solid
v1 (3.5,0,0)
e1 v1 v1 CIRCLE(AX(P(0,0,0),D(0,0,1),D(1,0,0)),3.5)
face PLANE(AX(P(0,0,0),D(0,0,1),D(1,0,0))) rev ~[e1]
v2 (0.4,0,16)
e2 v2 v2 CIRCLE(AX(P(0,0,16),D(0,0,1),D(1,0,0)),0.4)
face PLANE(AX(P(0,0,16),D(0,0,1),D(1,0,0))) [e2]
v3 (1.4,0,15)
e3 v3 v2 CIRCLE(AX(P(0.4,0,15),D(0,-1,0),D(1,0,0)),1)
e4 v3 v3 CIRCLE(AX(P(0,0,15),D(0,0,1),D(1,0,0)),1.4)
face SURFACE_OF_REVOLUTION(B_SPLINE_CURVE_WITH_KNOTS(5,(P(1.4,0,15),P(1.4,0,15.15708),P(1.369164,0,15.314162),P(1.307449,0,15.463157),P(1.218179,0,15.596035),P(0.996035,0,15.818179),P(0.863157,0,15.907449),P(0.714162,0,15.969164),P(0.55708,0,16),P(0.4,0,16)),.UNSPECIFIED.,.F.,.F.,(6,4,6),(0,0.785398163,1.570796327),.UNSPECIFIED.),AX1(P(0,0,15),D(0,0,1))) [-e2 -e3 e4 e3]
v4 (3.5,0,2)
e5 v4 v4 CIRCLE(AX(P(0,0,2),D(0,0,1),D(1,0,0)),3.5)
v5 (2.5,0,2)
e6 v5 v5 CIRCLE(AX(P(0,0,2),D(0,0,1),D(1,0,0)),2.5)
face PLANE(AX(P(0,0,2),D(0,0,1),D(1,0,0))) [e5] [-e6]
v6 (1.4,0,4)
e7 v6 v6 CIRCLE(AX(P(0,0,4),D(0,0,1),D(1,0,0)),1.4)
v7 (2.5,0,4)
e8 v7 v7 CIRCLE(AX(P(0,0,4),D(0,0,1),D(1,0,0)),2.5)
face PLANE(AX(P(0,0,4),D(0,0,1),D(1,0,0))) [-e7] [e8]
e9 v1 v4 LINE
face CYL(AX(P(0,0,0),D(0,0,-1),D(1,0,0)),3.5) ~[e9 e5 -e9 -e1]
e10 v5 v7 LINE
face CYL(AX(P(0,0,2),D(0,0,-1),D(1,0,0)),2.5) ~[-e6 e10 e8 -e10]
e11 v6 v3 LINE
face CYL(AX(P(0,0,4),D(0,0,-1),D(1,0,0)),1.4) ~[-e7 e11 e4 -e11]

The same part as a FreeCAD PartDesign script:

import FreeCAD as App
import Part
import Sketcher


def edges_at(feature, points):
    """Names of the edges that pass closest to the given points."""
    edges = feature.Shape.Edges
    near = lambda p: min(range(len(edges)), key=lambda i: edges[i].distToShape(Part.Vertex(*p))[0])
    return sorted({f"Edge{near(p) + 1}" for p in points})

doc = App.newDocument("Part")
body = doc.addObject("PartDesign::Body", "Body")

sketch1 = doc.addObject("Sketcher::SketchObject", "Sketch")
body.addObject(sketch1)
sketch1.AttachmentSupport = (doc.XY_Plane, [""])
sketch1.MapMode = "FlatFace"
sketch1.addGeometry(Part.Circle(App.Vector(0, 0, 0), App.Vector(0, 0, 1), 3.5), False)
sketch1.addConstraint(Sketcher.Constraint("Coincident", 0, 3, -1, 1))
sketch1.addConstraint(Sketcher.Constraint("Diameter", 0, 7.0))
pad1 = doc.addObject("PartDesign::Pad", "Pad")
body.addObject(pad1)
pad1.Profile = sketch1
pad1.Length = 2

sketch2 = doc.addObject("Sketcher::SketchObject", "Sketch001")
body.addObject(sketch2)
sketch2.AttachmentSupport = (doc.XY_Plane, [""])
sketch2.MapMode = "FlatFace"
sketch2.AttachmentOffset = App.Placement(App.Vector(0, 0, 2), App.Rotation())
sketch2.addGeometry(Part.Circle(App.Vector(0, 0, 0), App.Vector(0, 0, 1), 2.5), False)
sketch2.addConstraint(Sketcher.Constraint("Coincident", 0, 3, -1, 1))
sketch2.addConstraint(Sketcher.Constraint("Diameter", 0, 5.0))
pad2 = doc.addObject("PartDesign::Pad", "Pad001")
body.addObject(pad2)
pad2.Profile = sketch2
pad2.Length = 2

sketch3 = doc.addObject("Sketcher::SketchObject", "Sketch002")
body.addObject(sketch3)
sketch3.AttachmentSupport = (doc.XY_Plane, [""])
sketch3.MapMode = "FlatFace"
sketch3.AttachmentOffset = App.Placement(App.Vector(0, 0, 4), App.Rotation())
sketch3.addGeometry(Part.Circle(App.Vector(0, 0, 0), App.Vector(0, 0, 1), 1.4), False)
sketch3.addConstraint(Sketcher.Constraint("Coincident", 0, 3, -1, 1))
sketch3.addConstraint(Sketcher.Constraint("Diameter", 0, 2.8))
pad3 = doc.addObject("PartDesign::Pad", "Pad002")
body.addObject(pad3)
pad3.Profile = sketch3
pad3.Length = 12
doc.recompute()

fillet = doc.addObject("PartDesign::Fillet", "Fillet")
body.addObject(fillet)
fillet.Base = (pad3, edges_at(pad3, [(-1.4, 0, 16)]))
fillet.Radius = 1

doc.recompute()
